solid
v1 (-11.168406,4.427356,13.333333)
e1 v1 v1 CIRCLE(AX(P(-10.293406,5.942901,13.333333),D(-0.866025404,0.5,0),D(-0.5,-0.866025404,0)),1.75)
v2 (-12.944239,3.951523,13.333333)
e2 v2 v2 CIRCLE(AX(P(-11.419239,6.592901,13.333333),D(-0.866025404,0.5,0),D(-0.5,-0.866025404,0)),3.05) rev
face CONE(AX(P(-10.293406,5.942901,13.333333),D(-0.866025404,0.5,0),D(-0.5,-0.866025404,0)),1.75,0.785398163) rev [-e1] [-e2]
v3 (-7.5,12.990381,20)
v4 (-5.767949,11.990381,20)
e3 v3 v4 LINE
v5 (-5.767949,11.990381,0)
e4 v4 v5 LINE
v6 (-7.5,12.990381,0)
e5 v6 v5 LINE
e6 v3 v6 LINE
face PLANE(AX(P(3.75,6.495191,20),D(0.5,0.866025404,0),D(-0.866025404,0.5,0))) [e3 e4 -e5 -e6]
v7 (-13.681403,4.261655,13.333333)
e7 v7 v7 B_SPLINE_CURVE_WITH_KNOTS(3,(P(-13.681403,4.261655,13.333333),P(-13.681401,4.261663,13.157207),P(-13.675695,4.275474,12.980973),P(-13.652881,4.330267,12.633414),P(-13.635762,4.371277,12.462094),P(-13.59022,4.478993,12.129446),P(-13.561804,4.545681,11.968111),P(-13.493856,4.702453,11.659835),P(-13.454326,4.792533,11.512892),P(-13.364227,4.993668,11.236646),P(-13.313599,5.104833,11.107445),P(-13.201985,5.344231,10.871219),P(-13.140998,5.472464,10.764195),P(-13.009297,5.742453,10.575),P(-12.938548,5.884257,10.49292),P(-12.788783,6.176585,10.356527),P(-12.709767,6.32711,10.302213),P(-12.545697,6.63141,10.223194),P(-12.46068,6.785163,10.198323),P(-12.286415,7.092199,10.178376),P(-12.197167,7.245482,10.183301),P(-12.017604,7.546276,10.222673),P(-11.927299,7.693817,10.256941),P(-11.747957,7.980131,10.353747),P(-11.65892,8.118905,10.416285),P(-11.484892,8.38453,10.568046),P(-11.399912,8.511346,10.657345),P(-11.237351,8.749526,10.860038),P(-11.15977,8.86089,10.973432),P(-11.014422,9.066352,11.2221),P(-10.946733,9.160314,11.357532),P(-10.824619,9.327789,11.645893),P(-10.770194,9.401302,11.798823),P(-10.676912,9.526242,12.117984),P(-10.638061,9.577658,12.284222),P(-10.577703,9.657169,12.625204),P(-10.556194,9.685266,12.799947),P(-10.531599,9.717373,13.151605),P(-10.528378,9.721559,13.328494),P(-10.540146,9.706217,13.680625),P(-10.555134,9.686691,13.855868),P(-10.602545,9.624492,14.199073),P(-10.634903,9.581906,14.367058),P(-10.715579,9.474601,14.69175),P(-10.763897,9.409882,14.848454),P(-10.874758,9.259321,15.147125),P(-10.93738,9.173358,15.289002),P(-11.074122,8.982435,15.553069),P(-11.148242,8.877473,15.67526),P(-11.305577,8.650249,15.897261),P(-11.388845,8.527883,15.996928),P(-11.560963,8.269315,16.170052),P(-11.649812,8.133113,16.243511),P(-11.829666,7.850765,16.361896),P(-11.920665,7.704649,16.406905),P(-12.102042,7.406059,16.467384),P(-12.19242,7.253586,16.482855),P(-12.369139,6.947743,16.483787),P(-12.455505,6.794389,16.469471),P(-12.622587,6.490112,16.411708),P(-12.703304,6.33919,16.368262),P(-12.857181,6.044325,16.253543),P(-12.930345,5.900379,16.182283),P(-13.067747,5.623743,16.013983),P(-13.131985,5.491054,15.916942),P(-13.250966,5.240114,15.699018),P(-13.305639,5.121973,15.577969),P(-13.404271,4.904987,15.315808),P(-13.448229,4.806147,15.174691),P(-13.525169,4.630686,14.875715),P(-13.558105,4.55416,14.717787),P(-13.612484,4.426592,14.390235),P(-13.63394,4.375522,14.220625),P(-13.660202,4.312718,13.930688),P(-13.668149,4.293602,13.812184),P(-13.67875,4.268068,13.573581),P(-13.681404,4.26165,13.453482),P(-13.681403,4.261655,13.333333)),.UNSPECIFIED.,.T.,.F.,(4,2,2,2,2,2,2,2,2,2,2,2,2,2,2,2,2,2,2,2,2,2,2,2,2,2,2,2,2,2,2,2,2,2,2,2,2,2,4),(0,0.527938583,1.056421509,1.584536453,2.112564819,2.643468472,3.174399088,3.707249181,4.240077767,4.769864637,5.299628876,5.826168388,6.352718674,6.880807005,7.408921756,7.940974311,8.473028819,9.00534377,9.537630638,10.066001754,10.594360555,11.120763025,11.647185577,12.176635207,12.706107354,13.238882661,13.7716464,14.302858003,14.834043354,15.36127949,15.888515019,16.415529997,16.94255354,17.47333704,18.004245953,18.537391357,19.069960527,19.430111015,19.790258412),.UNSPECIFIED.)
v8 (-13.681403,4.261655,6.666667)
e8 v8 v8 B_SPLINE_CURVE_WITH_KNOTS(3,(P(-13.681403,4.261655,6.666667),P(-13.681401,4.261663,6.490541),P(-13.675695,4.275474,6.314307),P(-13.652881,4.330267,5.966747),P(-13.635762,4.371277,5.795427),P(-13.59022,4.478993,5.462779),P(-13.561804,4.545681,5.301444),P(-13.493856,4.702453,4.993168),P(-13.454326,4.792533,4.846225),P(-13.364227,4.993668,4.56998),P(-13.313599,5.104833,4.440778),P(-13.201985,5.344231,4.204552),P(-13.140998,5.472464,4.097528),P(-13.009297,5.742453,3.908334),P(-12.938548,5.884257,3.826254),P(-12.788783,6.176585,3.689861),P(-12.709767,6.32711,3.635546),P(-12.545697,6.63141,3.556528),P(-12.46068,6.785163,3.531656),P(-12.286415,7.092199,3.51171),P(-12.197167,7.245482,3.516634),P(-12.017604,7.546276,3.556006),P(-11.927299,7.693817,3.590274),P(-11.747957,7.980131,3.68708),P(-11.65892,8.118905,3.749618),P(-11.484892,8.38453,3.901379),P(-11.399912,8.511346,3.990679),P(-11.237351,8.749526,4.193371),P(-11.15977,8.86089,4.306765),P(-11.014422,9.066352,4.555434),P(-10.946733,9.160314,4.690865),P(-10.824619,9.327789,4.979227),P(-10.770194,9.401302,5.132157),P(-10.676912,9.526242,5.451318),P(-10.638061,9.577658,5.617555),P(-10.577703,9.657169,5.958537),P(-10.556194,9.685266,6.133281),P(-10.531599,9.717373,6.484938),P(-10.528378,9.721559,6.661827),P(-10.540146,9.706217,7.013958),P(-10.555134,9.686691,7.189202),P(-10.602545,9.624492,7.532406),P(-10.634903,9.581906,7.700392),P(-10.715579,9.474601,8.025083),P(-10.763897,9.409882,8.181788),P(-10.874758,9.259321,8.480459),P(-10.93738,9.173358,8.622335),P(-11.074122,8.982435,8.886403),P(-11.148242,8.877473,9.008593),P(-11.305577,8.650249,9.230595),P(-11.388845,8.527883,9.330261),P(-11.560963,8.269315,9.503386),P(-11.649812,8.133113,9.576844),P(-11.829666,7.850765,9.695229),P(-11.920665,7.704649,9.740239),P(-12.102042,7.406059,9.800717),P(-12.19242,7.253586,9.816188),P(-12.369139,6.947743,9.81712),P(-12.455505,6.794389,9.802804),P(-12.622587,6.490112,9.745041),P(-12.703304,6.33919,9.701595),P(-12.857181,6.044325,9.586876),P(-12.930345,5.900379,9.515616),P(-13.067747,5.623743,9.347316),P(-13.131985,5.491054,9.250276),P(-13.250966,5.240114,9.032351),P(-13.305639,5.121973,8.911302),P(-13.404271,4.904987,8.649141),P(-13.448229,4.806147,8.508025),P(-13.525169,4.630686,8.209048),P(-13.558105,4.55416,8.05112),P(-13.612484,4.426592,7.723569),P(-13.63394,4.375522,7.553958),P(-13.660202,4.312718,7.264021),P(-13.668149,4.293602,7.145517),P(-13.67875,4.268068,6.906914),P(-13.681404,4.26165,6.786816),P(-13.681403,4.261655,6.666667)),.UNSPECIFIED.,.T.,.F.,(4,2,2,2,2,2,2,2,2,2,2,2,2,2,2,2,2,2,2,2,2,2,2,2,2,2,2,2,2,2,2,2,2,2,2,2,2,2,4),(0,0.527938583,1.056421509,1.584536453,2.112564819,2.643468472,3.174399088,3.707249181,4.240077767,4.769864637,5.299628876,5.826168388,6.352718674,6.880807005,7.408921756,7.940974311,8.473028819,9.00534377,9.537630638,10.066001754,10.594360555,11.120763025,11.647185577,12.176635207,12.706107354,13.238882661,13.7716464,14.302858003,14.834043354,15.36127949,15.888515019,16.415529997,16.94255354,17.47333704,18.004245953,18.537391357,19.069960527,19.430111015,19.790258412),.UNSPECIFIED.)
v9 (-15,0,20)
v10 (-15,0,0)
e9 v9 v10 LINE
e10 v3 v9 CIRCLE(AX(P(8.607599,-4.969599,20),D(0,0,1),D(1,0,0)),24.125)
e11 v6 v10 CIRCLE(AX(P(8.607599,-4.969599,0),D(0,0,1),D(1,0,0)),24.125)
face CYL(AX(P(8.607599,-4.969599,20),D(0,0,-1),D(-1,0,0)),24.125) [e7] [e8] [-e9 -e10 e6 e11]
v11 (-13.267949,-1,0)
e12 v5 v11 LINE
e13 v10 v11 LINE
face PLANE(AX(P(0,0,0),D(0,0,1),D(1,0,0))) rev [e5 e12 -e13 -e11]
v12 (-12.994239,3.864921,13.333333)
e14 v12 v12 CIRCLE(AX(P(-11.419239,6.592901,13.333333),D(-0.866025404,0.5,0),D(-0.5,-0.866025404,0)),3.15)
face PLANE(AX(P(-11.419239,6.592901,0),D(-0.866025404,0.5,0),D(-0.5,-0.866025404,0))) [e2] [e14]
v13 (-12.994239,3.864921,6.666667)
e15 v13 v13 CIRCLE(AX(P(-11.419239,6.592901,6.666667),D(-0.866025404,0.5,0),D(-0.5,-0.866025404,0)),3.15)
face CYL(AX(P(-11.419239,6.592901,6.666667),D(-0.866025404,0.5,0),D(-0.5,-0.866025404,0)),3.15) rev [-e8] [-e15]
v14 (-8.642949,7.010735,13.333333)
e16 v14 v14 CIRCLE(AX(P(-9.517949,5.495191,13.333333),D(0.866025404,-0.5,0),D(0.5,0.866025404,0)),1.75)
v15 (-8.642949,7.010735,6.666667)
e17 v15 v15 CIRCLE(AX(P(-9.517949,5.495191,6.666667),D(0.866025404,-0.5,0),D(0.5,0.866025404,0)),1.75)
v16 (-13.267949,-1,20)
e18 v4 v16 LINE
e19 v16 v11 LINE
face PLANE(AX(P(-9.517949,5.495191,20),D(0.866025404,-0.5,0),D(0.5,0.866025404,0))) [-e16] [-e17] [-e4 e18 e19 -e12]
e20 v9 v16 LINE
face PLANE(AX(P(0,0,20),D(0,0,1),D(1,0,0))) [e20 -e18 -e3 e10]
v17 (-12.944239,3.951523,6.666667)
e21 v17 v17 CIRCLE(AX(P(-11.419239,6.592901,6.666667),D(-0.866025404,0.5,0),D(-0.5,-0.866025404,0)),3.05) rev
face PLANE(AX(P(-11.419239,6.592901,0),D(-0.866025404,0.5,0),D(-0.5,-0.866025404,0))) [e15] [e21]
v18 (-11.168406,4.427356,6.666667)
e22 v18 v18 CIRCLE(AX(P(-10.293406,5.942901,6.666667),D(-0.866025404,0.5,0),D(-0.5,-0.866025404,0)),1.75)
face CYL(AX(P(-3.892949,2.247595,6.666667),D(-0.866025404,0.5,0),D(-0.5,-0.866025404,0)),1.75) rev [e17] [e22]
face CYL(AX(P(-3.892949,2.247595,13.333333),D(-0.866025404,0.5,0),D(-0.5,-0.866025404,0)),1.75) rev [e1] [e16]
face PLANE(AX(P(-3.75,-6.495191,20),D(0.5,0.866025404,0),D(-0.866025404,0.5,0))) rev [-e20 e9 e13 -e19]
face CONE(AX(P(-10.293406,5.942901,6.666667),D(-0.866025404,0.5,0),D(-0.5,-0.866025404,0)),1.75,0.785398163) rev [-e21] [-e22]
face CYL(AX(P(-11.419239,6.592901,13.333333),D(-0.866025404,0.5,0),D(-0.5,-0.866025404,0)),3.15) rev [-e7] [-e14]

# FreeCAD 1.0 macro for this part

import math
import FreeCAD as App
import Part
import Sketcher
Q = App.Units.Quantity


def edges_at(feature, points):
    """Names of the edges that pass closest to the given points."""
    edges = feature.Shape.Edges
    near = lambda p: min(range(len(edges)), key=lambda i: edges[i].distToShape(Part.Vertex(*p))[0])
    return sorted({f"Edge{near(p) + 1}" for p in points})

doc = App.newDocument("Part")
body = doc.addObject("PartDesign::Body", "Body")

# Sketch on XY plane
sketch1 = body.newObject("Sketcher::SketchObject", "Sketch")
sketch1.AttachmentSupport = (doc.getObject("XY_Plane"), [""])
sketch1.MapMode = "FlatFace"
sketch1.addGeometry(Part.LineSegment(App.Vector(-5.767949, 11.990381, 0), App.Vector(-7.5, 12.990381, 0)), False)
sketch1.addGeometry(Part.ArcOfCircle(Part.Circle(App.Vector(8.607599, -4.969599, 0), App.Vector(0, 0, 1), 24.125), math.radians(131.887679), math.radians(168.112321)), False)
sketch1.addGeometry(Part.LineSegment(App.Vector(-15, 0, 0), App.Vector(-13.267949, -1, 0)), False)
sketch1.addGeometry(Part.LineSegment(App.Vector(-13.267949, -1, 0), App.Vector(-5.767949, 11.990381, 0)), False)
sketch1.addConstraint(Sketcher.Constraint("Coincident", 0, 2, 1, 1))
sketch1.addConstraint(Sketcher.Constraint("Coincident", 1, 2, 2, 1))
sketch1.addConstraint(Sketcher.Constraint("Coincident", 2, 2, 3, 1))
sketch1.addConstraint(Sketcher.Constraint("Coincident", 3, 2, 0, 1))
sketch1.addConstraint(Sketcher.Constraint("PointOnObject", 1, 2, -1))
sketch1.addConstraint(Sketcher.Constraint("Parallel", 0, 2))
sketch1.addConstraint(Sketcher.Constraint("Perpendicular", 2, 3))
sketch1.addConstraint(Sketcher.Constraint("Equal", 0, 2))
sketch1.addConstraint(Sketcher.Constraint("Angle", 0, Q("150 deg")))
sketch1.addConstraint(Sketcher.Constraint("Distance", 0, 2.0))
sketch1.addConstraint(Sketcher.Constraint("Distance", 3, 15.0))
sketch1.addConstraint(Sketcher.Constraint("DistanceX", 1, 2, -1, 1, 15.0))
sketch1.addConstraint(Sketcher.Constraint("Radius", 1, 24.125))
pad1 = body.newObject("PartDesign::Pad", "Pad")
pad1.Profile = sketch1
pad1.Length = 20

# Sketch on an angled plane
sketch2 = body.newObject("Sketcher::SketchObject", "Sketch001")
sketch2.Placement = App.Placement(App.Vector(-12.285264, 7.092901, 0), App.Rotation(App.Vector(0, 0, 1), App.Vector(0.5, 0.866025404, 0), App.Vector(-0.866025404, 0.5, 0), "ZXY"))
sketch2.addGeometry(Part.Circle(App.Vector(6.666667, 0, 0), App.Vector(0, 0, 1), 1.75), False)
sketch2.addGeometry(Part.Circle(App.Vector(13.333333, 0, 0), App.Vector(0, 0, 1), 1.75), False)
sketch2.addConstraint(Sketcher.Constraint("Equal", 0, 1))
sketch2.addConstraint(Sketcher.Constraint("PointOnObject", 0, 3, -1))
sketch2.addConstraint(Sketcher.Constraint("PointOnObject", 1, 3, -1))
sketch2.addConstraint(Sketcher.Constraint("Diameter", 0, 3.5))
sketch2.addConstraint(Sketcher.Constraint("DistanceX", -1, 1, 0, 3, 6.666667))
sketch2.addConstraint(Sketcher.Constraint("DistanceX", -1, 1, 1, 3, 13.333333))
pocket1 = body.newObject("PartDesign::Pocket", "Pocket")
pocket1.Profile = sketch2
pocket1.Type = "ThroughAll"

# Sketch on an angled plane
sketch3 = body.newObject("Sketcher::SketchObject", "Sketch002")
sketch3.Placement = App.Placement(App.Vector(-12.285264, 7.092901, 0), App.Rotation(App.Vector(0, 0, 1), App.Vector(0.5, 0.866025404, 0), App.Vector(-0.866025404, 0.5, 0), "ZXY"))
sketch3.addGeometry(Part.Circle(App.Vector(6.666667, 0, 0), App.Vector(0, 0, 1), 3.15), False)
sketch3.addGeometry(Part.Circle(App.Vector(6.666667, 0, 0), App.Vector(0, 0, 1), 1.75), False)
sketch3.addGeometry(Part.Circle(App.Vector(13.333333, 0, 0), App.Vector(0, 0, 1), 3.15), False)
sketch3.addGeometry(Part.Circle(App.Vector(13.333333, 0, 0), App.Vector(0, 0, 1), 1.75), False)
sketch3.addConstraint(Sketcher.Constraint("Coincident", 1, 3, 0, 3))
sketch3.addConstraint(Sketcher.Constraint("Coincident", 3, 3, 2, 3))
sketch3.addConstraint(Sketcher.Constraint("Equal", 0, 2))
sketch3.addConstraint(Sketcher.Constraint("Equal", 1, 3))
sketch3.addConstraint(Sketcher.Constraint("PointOnObject", 0, 3, -1))
sketch3.addConstraint(Sketcher.Constraint("PointOnObject", 2, 3, -1))
sketch3.addConstraint(Sketcher.Constraint("Diameter", 0, 6.3))
sketch3.addConstraint(Sketcher.Constraint("Diameter", 1, 3.5))
sketch3.addConstraint(Sketcher.Constraint("DistanceX", -1, 1, 0, 3, 6.666667))
sketch3.addConstraint(Sketcher.Constraint("DistanceX", -1, 1, 2, 3, 13.333333))
pocket2 = body.newObject("PartDesign::Pocket", "Pocket001")
pocket2.Profile = sketch3
pocket2.Length = 1
doc.recompute()

chamfer = body.newObject("PartDesign::Chamfer", "Chamfer")
chamfer.Base = (pocket2, edges_at(pocket2, [(-11.419, 6.593, 4.917), (-11.419, 6.593, 11.583)]))
chamfer.Size = 1.3

doc.recompute()
